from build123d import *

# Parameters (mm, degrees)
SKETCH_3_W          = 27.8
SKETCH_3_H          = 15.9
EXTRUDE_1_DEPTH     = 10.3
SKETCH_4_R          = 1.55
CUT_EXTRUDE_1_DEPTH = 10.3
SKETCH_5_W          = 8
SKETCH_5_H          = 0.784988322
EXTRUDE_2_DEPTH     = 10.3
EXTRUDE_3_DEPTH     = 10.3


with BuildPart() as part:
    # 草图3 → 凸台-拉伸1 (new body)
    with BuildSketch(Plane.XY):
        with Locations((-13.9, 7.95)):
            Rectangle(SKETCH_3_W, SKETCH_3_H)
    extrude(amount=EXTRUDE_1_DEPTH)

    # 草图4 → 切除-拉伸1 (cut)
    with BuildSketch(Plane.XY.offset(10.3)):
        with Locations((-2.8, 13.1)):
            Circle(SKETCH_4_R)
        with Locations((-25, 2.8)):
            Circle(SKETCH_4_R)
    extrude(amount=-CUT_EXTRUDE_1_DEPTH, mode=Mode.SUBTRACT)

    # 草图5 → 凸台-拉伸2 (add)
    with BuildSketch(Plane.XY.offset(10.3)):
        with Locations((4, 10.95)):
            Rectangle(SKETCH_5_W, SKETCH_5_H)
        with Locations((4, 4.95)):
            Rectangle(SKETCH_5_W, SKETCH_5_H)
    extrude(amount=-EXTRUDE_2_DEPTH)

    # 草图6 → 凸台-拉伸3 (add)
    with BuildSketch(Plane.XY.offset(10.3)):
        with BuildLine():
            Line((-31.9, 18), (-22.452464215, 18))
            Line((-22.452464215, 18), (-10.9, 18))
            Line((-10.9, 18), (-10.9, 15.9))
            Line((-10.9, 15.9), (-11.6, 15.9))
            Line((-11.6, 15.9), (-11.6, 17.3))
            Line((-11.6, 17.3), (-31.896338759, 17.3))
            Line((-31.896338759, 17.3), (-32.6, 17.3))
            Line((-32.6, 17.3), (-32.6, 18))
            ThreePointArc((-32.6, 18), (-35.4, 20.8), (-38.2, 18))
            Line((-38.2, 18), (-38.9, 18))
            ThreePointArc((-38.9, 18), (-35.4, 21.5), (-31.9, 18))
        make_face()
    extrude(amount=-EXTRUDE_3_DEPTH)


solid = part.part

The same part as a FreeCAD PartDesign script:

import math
import FreeCAD as App
import Part
import Sketcher
Q = App.Units.Quantity

doc = App.newDocument("Part")
body = doc.addObject("PartDesign::Body", "Body")

# Sketch on XY plane
sketch1 = body.newObject("Sketcher::SketchObject", "Sketch")
sketch1.AttachmentSupport = (doc.getObject("XY_Plane"), [""])
sketch1.MapMode = "FlatFace"
sketch1.addGeometry(Part.LineSegment(App.Vector(-28, 16, 0), App.Vector(-28, 0, 0)), False)
sketch1.addGeometry(Part.LineSegment(App.Vector(-28, 0, 0), App.Vector(0, 0, 0)), False)
sketch1.addGeometry(Part.LineSegment(App.Vector(0, 0, 0), App.Vector(0, 16, 0)), False)
sketch1.addGeometry(Part.LineSegment(App.Vector(0, 16, 0), App.Vector(-28, 16, 0)), False)
sketch1.addConstraint(Sketcher.Constraint("Coincident", 0, 2, 1, 1))
sketch1.addConstraint(Sketcher.Constraint("Coincident", 1, 2, 2, 1))
sketch1.addConstraint(Sketcher.Constraint("Coincident", 2, 2, 3, 1))
sketch1.addConstraint(Sketcher.Constraint("Coincident", 3, 2, 0, 1))
sketch1.addConstraint(Sketcher.Constraint("Vertical", 0))
sketch1.addConstraint(Sketcher.Constraint("Horizontal", 1))
sketch1.addConstraint(Sketcher.Constraint("Vertical", 2))
sketch1.addConstraint(Sketcher.Constraint("Horizontal", 3))
sketch1.addConstraint(Sketcher.Constraint("Coincident", 1, 2, -1, 1))
sketch1.addConstraint(Sketcher.Constraint("DistanceX", 1, 1, 1, 2, Q("27.8 mm")))
sketch1.addConstraint(Sketcher.Constraint("DistanceY", 0, 2, 0, 1, Q("15.9 mm")))
pad1 = body.newObject("PartDesign::Pad", "Pad")
pad1.Profile = sketch1
pad1.Length = 10.3

# Sketch on XY plane
sketch2 = body.newObject("Sketcher::SketchObject", "Sketch001")
sketch2.AttachmentSupport = (doc.getObject("XY_Plane"), [""])
sketch2.MapMode = "FlatFace"
sketch2.AttachmentOffset = App.Placement(App.Vector(0, 0, 10.3), App.Rotation())
sketch2.addGeometry(Part.Circle(App.Vector(-2.8, 13.1, 0), App.Vector(0, 0, 1), 1.6), False)
sketch2.addGeometry(Part.Circle(App.Vector(-25, 2.8, 0), App.Vector(0, 0, 1), 1.6), False)
sketch2.addConstraint(Sketcher.Constraint("Equal", 0, 1))
sketch2.addConstraint(Sketcher.Constraint("Diameter", 0, Q("3.1 mm")))
sketch2.addConstraint(Sketcher.Constraint("DistanceX", 1, 3, -1, 1, Q("25 mm")))
sketch2.addConstraint(Sketcher.Constraint("DistanceX", 0, 3, -1, 1, Q("2.8 mm")))
sketch2.addConstraint(Sketcher.Constraint("DistanceY", -1, 1, 0, 3, Q("13.1 mm")))
sketch2.addConstraint(Sketcher.Constraint("DistanceY", -1, 1, 1, 3, Q("2.8 mm")))
pocket1 = body.newObject("PartDesign::Pocket", "Pocket")
pocket1.Profile = sketch2
pocket1.Length = 10.3

# Sketch on XY plane
sketch3 = body.newObject("Sketcher::SketchObject", "Sketch002")
sketch3.AttachmentSupport = (doc.getObject("XY_Plane"), [""])
sketch3.MapMode = "FlatFace"
sketch3.AttachmentOffset = App.Placement(App.Vector(0, 0, 10.3), App.Rotation())
sketch3.addGeometry(Part.LineSegment(App.Vector(0, 11.3, 0), App.Vector(0, 10.6, 0)), False)
sketch3.addGeometry(Part.LineSegment(App.Vector(0, 10.6, 0), App.Vector(8, 10.6, 0)), False)
sketch3.addGeometry(Part.LineSegment(App.Vector(8, 10.6, 0), App.Vector(8, 11.3, 0)), False)
sketch3.addGeometry(Part.LineSegment(App.Vector(8, 11.3, 0), App.Vector(0, 11.3, 0)), False)
sketch3.addGeometry(Part.LineSegment(App.Vector(0, 5.3, 0), App.Vector(0, 4.6, 0)), False)
sketch3.addGeometry(Part.LineSegment(App.Vector(0, 4.6, 0), App.Vector(8, 4.6, 0)), False)
sketch3.addGeometry(Part.LineSegment(App.Vector(8, 4.6, 0), App.Vector(8, 5.3, 0)), False)
sketch3.addGeometry(Part.LineSegment(App.Vector(8, 5.3, 0), App.Vector(0, 5.3, 0)), False)
sketch3.addConstraint(Sketcher.Constraint("Coincident", 0, 2, 1, 1))
sketch3.addConstraint(Sketcher.Constraint("Coincident", 1, 2, 2, 1))
sketch3.addConstraint(Sketcher.Constraint("Coincident", 2, 2, 3, 1))
sketch3.addConstraint(Sketcher.Constraint("Coincident", 3, 2, 0, 1))
sketch3.addConstraint(Sketcher.Constraint("Coincident", 4, 2, 5, 1))
sketch3.addConstraint(Sketcher.Constraint("Coincident", 5, 2, 6, 1))
sketch3.addConstraint(Sketcher.Constraint("Coincident", 6, 2, 7, 1))
sketch3.addConstraint(Sketcher.Constraint("Coincident", 7, 2, 4, 1))
sketch3.addConstraint(Sketcher.Constraint("Vertical", 0))
sketch3.addConstraint(Sketcher.Constraint("Horizontal", 1))
sketch3.addConstraint(Sketcher.Constraint("Vertical", 2))
sketch3.addConstraint(Sketcher.Constraint("Horizontal", 3))
sketch3.addConstraint(Sketcher.Constraint("Vertical", 4))
sketch3.addConstraint(Sketcher.Constraint("Horizontal", 5))
sketch3.addConstraint(Sketcher.Constraint("Vertical", 6))
sketch3.addConstraint(Sketcher.Constraint("Horizontal", 7))
sketch3.addConstraint(Sketcher.Constraint("PointOnObject", 0, 2, -2))
sketch3.addConstraint(Sketcher.Constraint("PointOnObject", 4, 2, -2))
sketch3.addConstraint(Sketcher.Constraint("Vertical", 2, 2, 5, 2))
sketch3.addConstraint(Sketcher.Constraint("Equal", 2, 4))
sketch3.addConstraint(Sketcher.Constraint("DistanceX", 1, 1, 1, 2, Q("8 mm")))
sketch3.addConstraint(Sketcher.Constraint("DistanceY", 4, 2, 0, 2, Q("6 mm")))
sketch3.addConstraint(Sketcher.Constraint("DistanceY", 0, 2, 0, 1, Q("0.784988 mm")))
sketch3.addConstraint(Sketcher.Constraint("DistanceY", -1, 1, 0, 2, Q("10.557506 mm")))
pad2 = body.newObject("PartDesign::Pad", "Pad001")
pad2.Profile = sketch3
pad2.Length = 10.3
pad2.Reversed = True

# Sketch on XY plane
sketch4 = body.newObject("Sketcher::SketchObject", "Sketch003")
sketch4.AttachmentSupport = (doc.getObject("XY_Plane"), [""])
sketch4.MapMode = "FlatFace"
sketch4.AttachmentOffset = App.Placement(App.Vector(0, 0, 10.3), App.Rotation())
sketch4.addGeometry(Part.LineSegment(App.Vector(-10.9, 18, 0), App.Vector(-31.9, 18, 0)), False)
sketch4.addGeometry(Part.ArcOfCircle(Part.Circle(App.Vector(-35.4, 18, 0), App.Vector(0, 0, 1), 3.5), math.radians(0), math.radians(180)), False)
sketch4.addGeometry(Part.LineSegment(App.Vector(-38.9, 18, 0), App.Vector(-38.2, 18, 0)), False)
sketch4.addGeometry(Part.ArcOfCircle(Part.Circle(App.Vector(-35.4, 18, 0), App.Vector(0, 0, 1), 2.8), math.radians(0), math.radians(180)), False)
sketch4.addGeometry(Part.LineSegment(App.Vector(-32.6, 18, 0), App.Vector(-32.6, 17.3, 0)), False)
sketch4.addGeometry(Part.LineSegment(App.Vector(-32.6, 17.3, 0), App.Vector(-11.6, 17.3, 0)), False)
sketch4.addGeometry(Part.LineSegment(App.Vector(-11.6, 17.3, 0), App.Vector(-11.6, 15.9, 0)), False)
sketch4.addGeometry(Part.LineSegment(App.Vector(-11.6, 15.9, 0), App.Vector(-10.9, 15.9, 0)), False)
sketch4.addGeometry(Part.LineSegment(App.Vector(-10.9, 15.9, 0), App.Vector(-10.9, 18, 0)), False)
sketch4.addConstraint(Sketcher.Constraint("Coincident", 0, 2, 1, 1))
sketch4.addConstraint(Sketcher.Constraint("Coincident", 1, 2, 2, 1))
sketch4.addConstraint(Sketcher.Constraint("Coincident", 2, 2, 3, 2))
sketch4.addConstraint(Sketcher.Constraint("Tangent", 3, 1, 4, 1))
sketch4.addConstraint(Sketcher.Constraint("Coincident", 4, 2, 5, 1))
sketch4.addConstraint(Sketcher.Constraint("Coincident", 5, 2, 6, 1))
sketch4.addConstraint(Sketcher.Constraint("Coincident", 6, 2, 7, 1))
sketch4.addConstraint(Sketcher.Constraint("Coincident", 7, 2, 8, 1))
sketch4.addConstraint(Sketcher.Constraint("Coincident", 8, 2, 0, 1))
sketch4.addConstraint(Sketcher.Constraint("Horizontal", 0))
sketch4.addConstraint(Sketcher.Constraint("Horizontal", 2))
sketch4.addConstraint(Sketcher.Constraint("Vertical", 4))
sketch4.addConstraint(Sketcher.Constraint("Horizontal", 5))
sketch4.addConstraint(Sketcher.Constraint("Vertical", 6))
sketch4.addConstraint(Sketcher.Constraint("Horizontal", 7))
sketch4.addConstraint(Sketcher.Constraint("Vertical", 8))
sketch4.addConstraint(Sketcher.Constraint("Coincident", 3, 3, 1, 3))
sketch4.addConstraint(Sketcher.Constraint("Horizontal", 3, 3, 0, 2))
sketch4.addConstraint(Sketcher.Constraint("Horizontal", 0, 2, 1, 2))
sketch4.addConstraint(Sketcher.Constraint("Equal", 0, 5))
sketch4.addConstraint(Sketcher.Constraint("Equal", 7, 4))
sketch4.addConstraint(Sketcher.Constraint("Radius", 1, Q("3.5 mm")))
sketch4.addConstraint(Sketcher.Constraint("Radius", 3, Q("2.8 mm")))
sketch4.addConstraint(Sketcher.Constraint("DistanceX", 0, 2, 0, 1, Q("21 mm")))
sketch4.addConstraint(Sketcher.Constraint("DistanceY", 6, 2, 6, 1, Q("1.4 mm")))
sketch4.addConstraint(Sketcher.Constraint("DistanceY", -1, 1, 1, 3, Q("18 mm")))
sketch4.addConstraint(Sketcher.Constraint("DistanceX", 1, 3, -1, 1, Q("35.4 mm")))
pad3 = body.newObject("PartDesign::Pad", "Pad002")
pad3.Profile = sketch4
pad3.Length = 10.3
pad3.Reversed = True

doc.recompute()
